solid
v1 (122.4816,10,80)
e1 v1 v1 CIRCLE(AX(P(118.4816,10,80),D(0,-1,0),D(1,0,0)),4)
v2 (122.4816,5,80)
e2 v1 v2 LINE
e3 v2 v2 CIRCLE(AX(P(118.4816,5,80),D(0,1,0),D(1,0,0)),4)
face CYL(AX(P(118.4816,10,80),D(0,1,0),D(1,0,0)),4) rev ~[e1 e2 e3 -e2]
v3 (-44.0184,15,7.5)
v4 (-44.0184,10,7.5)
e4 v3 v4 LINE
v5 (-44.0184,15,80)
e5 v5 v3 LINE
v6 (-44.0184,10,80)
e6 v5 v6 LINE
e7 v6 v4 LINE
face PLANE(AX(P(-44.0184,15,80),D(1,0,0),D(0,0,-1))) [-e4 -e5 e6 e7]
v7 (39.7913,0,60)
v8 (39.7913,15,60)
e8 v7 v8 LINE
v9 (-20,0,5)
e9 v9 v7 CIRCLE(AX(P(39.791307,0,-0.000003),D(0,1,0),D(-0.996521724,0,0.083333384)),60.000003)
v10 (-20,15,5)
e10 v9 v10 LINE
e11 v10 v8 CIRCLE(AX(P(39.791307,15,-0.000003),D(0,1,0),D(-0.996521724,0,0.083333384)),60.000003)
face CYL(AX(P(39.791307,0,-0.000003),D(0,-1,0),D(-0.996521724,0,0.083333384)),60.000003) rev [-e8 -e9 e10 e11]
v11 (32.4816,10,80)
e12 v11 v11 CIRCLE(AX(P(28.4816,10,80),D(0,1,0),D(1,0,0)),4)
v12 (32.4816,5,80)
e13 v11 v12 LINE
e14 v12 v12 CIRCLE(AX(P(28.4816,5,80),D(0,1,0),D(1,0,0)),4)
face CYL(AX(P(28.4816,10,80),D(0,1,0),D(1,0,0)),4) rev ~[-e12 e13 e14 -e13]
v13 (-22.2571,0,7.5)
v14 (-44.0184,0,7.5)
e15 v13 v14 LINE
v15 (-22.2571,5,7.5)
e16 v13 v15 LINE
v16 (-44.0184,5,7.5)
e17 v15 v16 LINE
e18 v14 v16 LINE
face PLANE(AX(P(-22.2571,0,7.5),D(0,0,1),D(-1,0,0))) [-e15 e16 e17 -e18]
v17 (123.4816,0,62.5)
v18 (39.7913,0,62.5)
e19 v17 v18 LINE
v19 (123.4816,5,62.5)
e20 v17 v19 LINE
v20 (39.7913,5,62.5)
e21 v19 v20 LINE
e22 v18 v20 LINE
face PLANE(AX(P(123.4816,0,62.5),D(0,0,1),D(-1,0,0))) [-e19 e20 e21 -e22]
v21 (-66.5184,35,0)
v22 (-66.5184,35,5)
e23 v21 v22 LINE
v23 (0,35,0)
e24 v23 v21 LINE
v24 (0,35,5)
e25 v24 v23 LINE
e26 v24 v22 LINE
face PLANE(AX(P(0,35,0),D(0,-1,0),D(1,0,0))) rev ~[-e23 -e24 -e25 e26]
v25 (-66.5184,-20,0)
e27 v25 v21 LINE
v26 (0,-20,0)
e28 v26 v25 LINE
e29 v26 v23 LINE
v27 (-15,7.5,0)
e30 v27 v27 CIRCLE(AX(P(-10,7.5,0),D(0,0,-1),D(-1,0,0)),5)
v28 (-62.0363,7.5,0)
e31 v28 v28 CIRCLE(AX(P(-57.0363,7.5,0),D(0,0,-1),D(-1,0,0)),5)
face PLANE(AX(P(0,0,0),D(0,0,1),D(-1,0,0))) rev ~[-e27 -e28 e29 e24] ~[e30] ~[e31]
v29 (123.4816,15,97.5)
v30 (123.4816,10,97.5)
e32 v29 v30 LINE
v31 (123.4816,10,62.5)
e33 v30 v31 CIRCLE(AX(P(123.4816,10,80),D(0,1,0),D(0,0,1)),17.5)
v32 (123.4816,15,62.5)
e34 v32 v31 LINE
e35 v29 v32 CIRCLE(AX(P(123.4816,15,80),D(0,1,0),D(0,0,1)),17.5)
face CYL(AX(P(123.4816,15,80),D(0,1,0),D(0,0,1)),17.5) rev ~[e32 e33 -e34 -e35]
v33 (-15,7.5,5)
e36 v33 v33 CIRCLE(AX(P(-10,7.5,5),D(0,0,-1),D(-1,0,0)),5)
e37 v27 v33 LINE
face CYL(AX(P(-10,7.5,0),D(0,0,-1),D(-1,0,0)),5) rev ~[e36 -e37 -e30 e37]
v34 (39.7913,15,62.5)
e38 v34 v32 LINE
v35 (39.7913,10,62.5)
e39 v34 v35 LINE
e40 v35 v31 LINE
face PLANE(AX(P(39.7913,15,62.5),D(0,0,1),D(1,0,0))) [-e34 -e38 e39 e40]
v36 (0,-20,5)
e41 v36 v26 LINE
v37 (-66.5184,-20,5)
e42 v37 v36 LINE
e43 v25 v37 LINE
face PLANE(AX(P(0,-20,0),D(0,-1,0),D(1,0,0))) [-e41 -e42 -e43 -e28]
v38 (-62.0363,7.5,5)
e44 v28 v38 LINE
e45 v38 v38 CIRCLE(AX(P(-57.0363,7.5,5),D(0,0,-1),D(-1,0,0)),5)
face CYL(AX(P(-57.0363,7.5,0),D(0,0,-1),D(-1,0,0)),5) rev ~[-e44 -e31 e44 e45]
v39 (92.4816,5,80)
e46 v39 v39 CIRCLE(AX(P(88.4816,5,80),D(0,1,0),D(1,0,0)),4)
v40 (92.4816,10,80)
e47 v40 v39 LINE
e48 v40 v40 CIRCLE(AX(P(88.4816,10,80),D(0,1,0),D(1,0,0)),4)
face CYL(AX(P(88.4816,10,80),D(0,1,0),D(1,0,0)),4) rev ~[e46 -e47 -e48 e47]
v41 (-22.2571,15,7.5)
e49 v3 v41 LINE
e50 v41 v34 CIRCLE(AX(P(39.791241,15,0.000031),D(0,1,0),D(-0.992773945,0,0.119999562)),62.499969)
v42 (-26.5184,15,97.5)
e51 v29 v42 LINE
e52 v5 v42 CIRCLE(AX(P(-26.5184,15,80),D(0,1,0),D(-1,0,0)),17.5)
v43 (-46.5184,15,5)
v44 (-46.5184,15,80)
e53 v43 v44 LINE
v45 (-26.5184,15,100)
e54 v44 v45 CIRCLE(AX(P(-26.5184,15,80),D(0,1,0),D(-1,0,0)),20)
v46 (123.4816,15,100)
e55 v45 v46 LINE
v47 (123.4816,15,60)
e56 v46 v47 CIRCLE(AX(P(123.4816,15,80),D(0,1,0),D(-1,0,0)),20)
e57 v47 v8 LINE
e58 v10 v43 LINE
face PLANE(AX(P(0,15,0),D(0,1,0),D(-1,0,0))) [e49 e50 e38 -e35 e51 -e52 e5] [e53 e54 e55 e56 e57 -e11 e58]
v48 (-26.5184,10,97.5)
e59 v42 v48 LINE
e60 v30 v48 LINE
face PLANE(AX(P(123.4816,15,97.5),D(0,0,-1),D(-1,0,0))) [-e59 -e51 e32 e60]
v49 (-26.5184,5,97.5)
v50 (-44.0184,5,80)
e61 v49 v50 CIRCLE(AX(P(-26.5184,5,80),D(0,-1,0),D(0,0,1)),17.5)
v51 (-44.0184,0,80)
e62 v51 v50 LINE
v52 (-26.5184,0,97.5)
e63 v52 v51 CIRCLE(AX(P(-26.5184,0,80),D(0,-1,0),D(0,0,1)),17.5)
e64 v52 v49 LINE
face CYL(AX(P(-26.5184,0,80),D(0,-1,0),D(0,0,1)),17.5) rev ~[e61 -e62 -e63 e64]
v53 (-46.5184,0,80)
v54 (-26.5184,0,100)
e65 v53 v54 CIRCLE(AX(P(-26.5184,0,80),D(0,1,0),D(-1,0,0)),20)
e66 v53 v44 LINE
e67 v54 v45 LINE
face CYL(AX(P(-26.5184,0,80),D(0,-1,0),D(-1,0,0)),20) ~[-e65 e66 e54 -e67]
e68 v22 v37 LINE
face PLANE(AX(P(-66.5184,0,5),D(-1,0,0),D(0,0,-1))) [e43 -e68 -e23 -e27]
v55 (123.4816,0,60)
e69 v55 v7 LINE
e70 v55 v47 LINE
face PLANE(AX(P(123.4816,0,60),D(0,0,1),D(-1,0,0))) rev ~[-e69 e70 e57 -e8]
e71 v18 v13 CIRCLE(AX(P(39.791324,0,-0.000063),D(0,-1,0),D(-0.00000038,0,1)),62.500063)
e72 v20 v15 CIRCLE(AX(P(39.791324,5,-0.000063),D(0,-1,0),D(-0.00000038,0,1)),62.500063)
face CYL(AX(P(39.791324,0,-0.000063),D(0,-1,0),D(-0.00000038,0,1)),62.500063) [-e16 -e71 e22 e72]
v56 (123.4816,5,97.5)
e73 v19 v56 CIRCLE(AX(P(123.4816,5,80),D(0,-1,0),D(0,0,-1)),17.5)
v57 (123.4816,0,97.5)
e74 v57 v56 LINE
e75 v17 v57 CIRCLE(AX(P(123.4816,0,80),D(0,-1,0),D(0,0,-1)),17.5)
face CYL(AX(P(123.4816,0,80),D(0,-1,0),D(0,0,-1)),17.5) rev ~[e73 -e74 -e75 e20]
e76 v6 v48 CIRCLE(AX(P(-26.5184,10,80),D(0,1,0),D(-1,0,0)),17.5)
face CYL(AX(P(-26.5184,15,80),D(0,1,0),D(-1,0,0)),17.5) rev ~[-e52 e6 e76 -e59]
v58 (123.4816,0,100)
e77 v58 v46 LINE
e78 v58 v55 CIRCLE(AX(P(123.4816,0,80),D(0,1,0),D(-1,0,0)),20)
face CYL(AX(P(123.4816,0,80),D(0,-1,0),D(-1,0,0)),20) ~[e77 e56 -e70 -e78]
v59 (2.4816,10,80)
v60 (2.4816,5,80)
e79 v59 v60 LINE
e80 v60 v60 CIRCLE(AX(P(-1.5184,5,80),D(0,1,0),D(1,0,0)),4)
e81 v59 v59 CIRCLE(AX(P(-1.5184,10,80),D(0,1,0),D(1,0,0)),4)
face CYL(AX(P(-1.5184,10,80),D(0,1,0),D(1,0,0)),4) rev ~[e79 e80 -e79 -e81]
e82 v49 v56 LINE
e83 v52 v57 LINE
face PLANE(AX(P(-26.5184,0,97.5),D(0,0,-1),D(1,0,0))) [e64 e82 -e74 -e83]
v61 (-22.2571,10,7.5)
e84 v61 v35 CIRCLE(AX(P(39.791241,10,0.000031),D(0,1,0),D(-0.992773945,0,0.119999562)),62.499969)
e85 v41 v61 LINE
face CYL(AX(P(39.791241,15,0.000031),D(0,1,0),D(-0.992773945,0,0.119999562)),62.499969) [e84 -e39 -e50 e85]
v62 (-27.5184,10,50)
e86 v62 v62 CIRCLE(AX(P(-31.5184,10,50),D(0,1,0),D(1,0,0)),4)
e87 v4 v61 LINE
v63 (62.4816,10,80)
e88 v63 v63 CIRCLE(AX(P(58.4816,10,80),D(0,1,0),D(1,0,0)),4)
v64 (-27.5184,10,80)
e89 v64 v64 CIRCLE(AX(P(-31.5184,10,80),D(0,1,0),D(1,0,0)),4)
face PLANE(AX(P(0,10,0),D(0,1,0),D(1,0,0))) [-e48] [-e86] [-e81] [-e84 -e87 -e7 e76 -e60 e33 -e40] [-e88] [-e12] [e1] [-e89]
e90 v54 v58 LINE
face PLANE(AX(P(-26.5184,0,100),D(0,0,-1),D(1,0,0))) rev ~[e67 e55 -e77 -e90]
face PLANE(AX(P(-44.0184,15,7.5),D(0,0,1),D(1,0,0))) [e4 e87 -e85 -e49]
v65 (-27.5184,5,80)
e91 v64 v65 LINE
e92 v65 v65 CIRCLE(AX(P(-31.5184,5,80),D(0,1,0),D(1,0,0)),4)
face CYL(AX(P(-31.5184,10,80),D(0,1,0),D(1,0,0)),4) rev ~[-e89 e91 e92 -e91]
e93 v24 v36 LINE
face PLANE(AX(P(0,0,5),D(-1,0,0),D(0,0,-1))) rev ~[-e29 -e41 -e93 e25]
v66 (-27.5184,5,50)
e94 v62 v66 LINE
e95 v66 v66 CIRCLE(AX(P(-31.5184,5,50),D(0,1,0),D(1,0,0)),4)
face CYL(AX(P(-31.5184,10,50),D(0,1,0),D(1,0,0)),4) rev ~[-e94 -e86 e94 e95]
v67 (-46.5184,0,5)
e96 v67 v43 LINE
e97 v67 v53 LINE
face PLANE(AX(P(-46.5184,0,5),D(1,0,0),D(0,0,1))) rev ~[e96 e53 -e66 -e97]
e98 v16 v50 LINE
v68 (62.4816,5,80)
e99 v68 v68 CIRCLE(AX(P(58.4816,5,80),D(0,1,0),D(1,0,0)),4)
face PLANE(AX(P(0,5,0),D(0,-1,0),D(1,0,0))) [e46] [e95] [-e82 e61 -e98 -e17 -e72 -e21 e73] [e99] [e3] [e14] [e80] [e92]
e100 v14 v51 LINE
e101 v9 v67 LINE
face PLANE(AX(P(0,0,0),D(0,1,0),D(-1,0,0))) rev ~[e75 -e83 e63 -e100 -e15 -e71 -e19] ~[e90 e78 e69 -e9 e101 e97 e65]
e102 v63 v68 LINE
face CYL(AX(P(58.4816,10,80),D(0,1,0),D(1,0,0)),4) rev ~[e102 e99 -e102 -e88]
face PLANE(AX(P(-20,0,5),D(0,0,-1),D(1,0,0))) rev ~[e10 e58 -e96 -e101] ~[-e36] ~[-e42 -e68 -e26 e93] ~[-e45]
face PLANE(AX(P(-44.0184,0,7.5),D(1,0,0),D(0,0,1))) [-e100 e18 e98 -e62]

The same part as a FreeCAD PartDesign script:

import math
import FreeCAD as App
import Part
import Sketcher
Q = App.Units.Quantity

doc = App.newDocument("Part")
body = doc.addObject("PartDesign::Body", "Body")

# Sketch on XZ plane
sketch1 = body.newObject("Sketcher::SketchObject", "Sketch")
sketch1.AttachmentSupport = (doc.getObject("XZ_Plane"), [""])
sketch1.MapMode = "FlatFace"
sketch1.addGeometry([
    Part.LineSegment(App.Vector(0, 5, 0), App.Vector(0, 0, 0)),  # 0
    Part.LineSegment(App.Vector(0, 0, 0), App.Vector(-67, 0, 0)),  # 1
    Part.LineSegment(App.Vector(-67, 0, 0), App.Vector(-67, 5, 0)),  # 2
    Part.LineSegment(App.Vector(-67, 5, 0), App.Vector(-47, 5, 0)),  # 3
    Part.LineSegment(App.Vector(-47, 5, 0), App.Vector(-47, 80, 0)),  # 4
    Part.ArcOfCircle(Part.Circle(App.Vector(-27, 80, 0), App.Vector(0, 0, 1), 20), math.radians(90), math.radians(180)),  # 5
    Part.LineSegment(App.Vector(-27, 100, 0), App.Vector(123, 100, 0)),  # 6
    Part.ArcOfCircle(Part.Circle(App.Vector(123, 80, 0), App.Vector(0, 0, 1), 20), math.radians(-90), math.radians(90)),  # 7
    Part.LineSegment(App.Vector(123, 60, 0), App.Vector(40, 60, 0)),  # 8
    Part.ArcOfCircle(Part.Circle(App.Vector(40, 0, 0), App.Vector(0, 0, 1), 60), math.radians(90), math.radians(175)),  # 9
    Part.LineSegment(App.Vector(-20, 5, 0), App.Vector(0, 5, 0)),  # 10
], False)
sketch1.addConstraint([
    Sketcher.Constraint("Coincident", 0, 2, 1, 1),
    Sketcher.Constraint("Coincident", 1, 2, 2, 1),
    Sketcher.Constraint("Coincident", 2, 2, 3, 1),
    Sketcher.Constraint("Coincident", 3, 2, 4, 1),
    Sketcher.Constraint("Tangent", 4, 2, 5, 2),
    Sketcher.Constraint("Tangent", 5, 1, 6, 1),
    Sketcher.Constraint("Tangent", 6, 2, 7, 2),
    Sketcher.Constraint("Tangent", 7, 1, 8, 1),
    Sketcher.Constraint("Tangent", 8, 2, 9, 1),
    Sketcher.Constraint("Coincident", 9, 2, 10, 1),
    Sketcher.Constraint("Coincident", 10, 2, 0, 1),
    Sketcher.Constraint("Vertical", 0),
    Sketcher.Constraint("Horizontal", 1),
    Sketcher.Constraint("Vertical", 2),
    Sketcher.Constraint("Horizontal", 3),
    Sketcher.Constraint("Vertical", 4),
    Sketcher.Constraint("Horizontal", 6),
    Sketcher.Constraint("Horizontal", 8),
    Sketcher.Constraint("Horizontal", 10),
    Sketcher.Constraint("Coincident", 0, 2, -1, 1),
    Sketcher.Constraint("Equal", 5, 7),
    Sketcher.Constraint("PointOnObject", 9, 3, -1),
    Sketcher.Constraint("Horizontal", 3, 2, 9, 2),
    Sketcher.Constraint("Equal", 3, 10),
    Sketcher.Constraint("Radius", 5, Q("20 mm")),
    Sketcher.Constraint("DistanceX", 6, 1, 6, 2, Q("150 mm")),
    Sketcher.Constraint("DistanceY", 0, 2, 0, 1, Q("5 mm")),
    Sketcher.Constraint("DistanceY", 4, 1, 4, 2, Q("75 mm")),
    Sketcher.Constraint("DistanceX", 1, 2, 5, 3, Q("40 mm")),
    Sketcher.Constraint("DistanceX", 1, 2, 1, 1, Q("66.5184 mm")),
])
pad1 = body.newObject("PartDesign::Pad", "Pad")
pad1.Profile = sketch1
pad1.Length = 15
pad1.Reversed = True

# Sketch on XZ plane
sketch2 = body.newObject("Sketcher::SketchObject", "Sketch001")
sketch2.AttachmentSupport = (doc.getObject("XZ_Plane"), [""])
sketch2.MapMode = "FlatFace"
sketch2.addGeometry([
    Part.LineSegment(App.Vector(0, 5, 0), App.Vector(-67, 5, 0)),
    Part.LineSegment(App.Vector(-67, 5, 0), App.Vector(-67, 0, 0)),
    Part.LineSegment(App.Vector(-67, 0, 0), App.Vector(0, 0, 0)),
    Part.LineSegment(App.Vector(0, 0, 0), App.Vector(0, 5, 0)),
], False)
sketch2.addConstraint([
    Sketcher.Constraint("Coincident", 0, 2, 1, 1),
    Sketcher.Constraint("Coincident", 1, 2, 2, 1),
    Sketcher.Constraint("Coincident", 2, 2, 3, 1),
    Sketcher.Constraint("Coincident", 3, 2, 0, 1),
    Sketcher.Constraint("Horizontal", 0),
    Sketcher.Constraint("Vertical", 1),
    Sketcher.Constraint("Horizontal", 2),
    Sketcher.Constraint("Vertical", 3),
    Sketcher.Constraint("Coincident", 2, 2, -1, 1),
    Sketcher.Constraint("DistanceY", 1, 2, 1, 1, Q("5 mm")),
    Sketcher.Constraint("DistanceX", 0, 2, 0, 1, Q("66.5184 mm")),
])
pad2 = body.newObject("PartDesign::Pad", "Pad001")
pad2.Profile = sketch2
pad2.Type = "TwoLengths"
pad2.Length = 20
pad2.Length2 = 35

# Sketch on XZ plane
sketch3 = body.newObject("Sketcher::SketchObject", "Sketch002")
sketch3.AttachmentSupport = (doc.getObject("XZ_Plane"), [""])
sketch3.MapMode = "FlatFace"
sketch3.addGeometry([
    Part.ArcOfCircle(Part.Circle(App.Vector(40, 0, 0), App.Vector(0, 0, 1), 62), math.radians(90), math.radians(173)),  # 0
    Part.LineSegment(App.Vector(40, 62, 0), App.Vector(123, 62, 0)),  # 1
    Part.ArcOfCircle(Part.Circle(App.Vector(123, 80, 0), App.Vector(0, 0, 1), 18), math.radians(-90), math.radians(90)),  # 2
    Part.LineSegment(App.Vector(123, 98, 0), App.Vector(-27, 98, 0)),  # 3
    Part.ArcOfCircle(Part.Circle(App.Vector(-27, 80, 0), App.Vector(0, 0, 1), 18), math.radians(90), math.radians(180)),  # 4
    Part.LineSegment(App.Vector(-44, 80, 0), App.Vector(-44, 8, 0)),  # 5
    Part.LineSegment(App.Vector(-44, 8, 0), App.Vector(-22, 8, 0)),  # 6
], False)
sketch3.addConstraint([
    Sketcher.Constraint("Tangent", 0, 1, 1, 1),
    Sketcher.Constraint("Tangent", 1, 2, 2, 1),
    Sketcher.Constraint("Tangent", 2, 2, 3, 1),
    Sketcher.Constraint("Tangent", 3, 2, 4, 1),
    Sketcher.Constraint("Tangent", 4, 2, 5, 1),
    Sketcher.Constraint("Coincident", 5, 2, 6, 1),
    Sketcher.Constraint("Coincident", 6, 2, 0, 2),
    Sketcher.Constraint("Horizontal", 1),
    Sketcher.Constraint("Horizontal", 3),
    Sketcher.Constraint("Vertical", 5),
    Sketcher.Constraint("Horizontal", 6),
    Sketcher.Constraint("Equal", 2, 4),
    Sketcher.Constraint("PointOnObject", 0, 3, -1),
    Sketcher.Constraint("Radius", 0, Q("62.5 mm")),
    Sketcher.Constraint("Radius", 2, Q("17.5 mm")),
    Sketcher.Constraint("DistanceX", 3, 2, 3, 1, Q("150 mm")),
    Sketcher.Constraint("DistanceY", 5, 2, 5, 1, Q("72.5 mm")),
    Sketcher.Constraint("DistanceX", 1, 1, 1, 2, Q("83.6903 mm")),
    Sketcher.Constraint("DistanceX", 6, 2, -1, 1, Q("22.257 mm")),
])
pocket1 = body.newObject("PartDesign::Pocket", "Pocket")
pocket1.Profile = sketch3
pocket1.Length = 5

# Sketch on XZ plane
sketch4 = body.newObject("Sketcher::SketchObject", "Sketch003")
sketch4.AttachmentSupport = (doc.getObject("XZ_Plane"), [""])
sketch4.MapMode = "FlatFace"
sketch4.AttachmentOffset = App.Placement(App.Vector(0, 0, -15), App.Rotation())
sketch4.addGeometry([
    Part.LineSegment(App.Vector(-44, 8, 0), App.Vector(-44, 80, 0)),  # 0
    Part.ArcOfCircle(Part.Circle(App.Vector(-27, 80, 0), App.Vector(0, 0, 1), 18), math.radians(90), math.radians(180)),  # 1
    Part.LineSegment(App.Vector(-27, 98, 0), App.Vector(123, 98, 0)),  # 2
    Part.ArcOfCircle(Part.Circle(App.Vector(123, 80, 0), App.Vector(0, 0, 1), 18), math.radians(-90), math.radians(90)),  # 3
    Part.LineSegment(App.Vector(123, 62, 0), App.Vector(40, 62, 0)),  # 4
    Part.ArcOfCircle(Part.Circle(App.Vector(40, 0, 0), App.Vector(0, 0, 1), 63), math.radians(90), math.radians(173)),  # 5
    Part.LineSegment(App.Vector(-22, 8, 0), App.Vector(-44, 8, 0)),  # 6
], False)
sketch4.addConstraint([
    Sketcher.Constraint("Tangent", 0, 2, 1, 2),
    Sketcher.Constraint("Tangent", 1, 1, 2, 1),
    Sketcher.Constraint("Tangent", 2, 2, 3, 2),
    Sketcher.Constraint("Tangent", 3, 1, 4, 1),
    Sketcher.Constraint("Tangent", 4, 2, 5, 1),
    Sketcher.Constraint("Coincident", 5, 2, 6, 1),
    Sketcher.Constraint("Coincident", 6, 2, 0, 1),
    Sketcher.Constraint("Vertical", 0),
    Sketcher.Constraint("Horizontal", 2),
    Sketcher.Constraint("Horizontal", 4),
    Sketcher.Constraint("Horizontal", 6),
    Sketcher.Constraint("Equal", 1, 3),
    Sketcher.Constraint("PointOnObject", 5, 3, -1),
    Sketcher.Constraint("Radius", 1, Q("17.5 mm")),
    Sketcher.Constraint("Radius", 5, Q("62.5 mm")),
    Sketcher.Constraint("DistanceX", 2, 1, 2, 2, Q("150 mm")),
    Sketcher.Constraint("DistanceY", 0, 1, 0, 2, Q("72.5 mm")),
    Sketcher.Constraint("DistanceX", 4, 2, 4, 1, Q("83.6903 mm")),
    Sketcher.Constraint("DistanceX", 5, 2, -1, 1, Q("22.257 mm")),
])
pocket2 = body.newObject("PartDesign::Pocket", "Pocket001")
pocket2.Profile = sketch4
pocket2.Length = 5
pocket2.Reversed = True

# Sketch on XZ plane
sketch5 = body.newObject("Sketcher::SketchObject", "Sketch004")
sketch5.AttachmentSupport = (doc.getObject("XZ_Plane"), [""])
sketch5.MapMode = "FlatFace"
sketch5.AttachmentOffset = App.Placement(App.Vector(0, 0, -10), App.Rotation())
sketch5.addGeometry([
    Part.Circle(App.Vector(118.5, 80, 0), App.Vector(0, 0, 1), 4),  # 0
    Part.Circle(App.Vector(88.5, 80, 0), App.Vector(0, 0, 1), 4),  # 1
    Part.Circle(App.Vector(58.5, 80, 0), App.Vector(0, 0, 1), 4),  # 2
    Part.Circle(App.Vector(28.5, 80, 0), App.Vector(0, 0, 1), 4),  # 3
    Part.Circle(App.Vector(-1.5, 80, 0), App.Vector(0, 0, 1), 4),  # 4
    Part.Circle(App.Vector(-31.5, 80, 0), App.Vector(0, 0, 1), 4),  # 5
    Part.Circle(App.Vector(-31.5, 50, 0), App.Vector(0, 0, 1), 4),  # 6
], False)
sketch5.addConstraint([
    Sketcher.Constraint("Equal", 0, 1),
    Sketcher.Constraint("Equal", 1, 2),
    Sketcher.Constraint("Equal", 2, 3),
    Sketcher.Constraint("Equal", 3, 4),
    Sketcher.Constraint("Equal", 4, 5),
    Sketcher.Constraint("Equal", 5, 6),
    Sketcher.Constraint("Horizontal", 0, 3, 1, 3),
    Sketcher.Constraint("Horizontal", 1, 3, 2, 3),
    Sketcher.Constraint("Horizontal", 2, 3, 3, 3),
    Sketcher.Constraint("Horizontal", 3, 3, 4, 3),
    Sketcher.Constraint("Horizontal", 4, 3, 5, 3),
    Sketcher.Constraint("Vertical", 5, 3, 6, 3),
    Sketcher.Constraint("Diameter", 0, Q("8 mm")),
    Sketcher.Constraint("DistanceX", 1, 3, 0, 3, Q("30 mm")),
    Sketcher.Constraint("DistanceX", 2, 3, 1, 3, Q("30 mm")),
    Sketcher.Constraint("DistanceX", 3, 3, 2, 3, Q("30 mm")),
    Sketcher.Constraint("DistanceX", 4, 3, 3, 3, Q("30 mm")),
    Sketcher.Constraint("DistanceX", 5, 3, 4, 3, Q("30 mm")),
    Sketcher.Constraint("DistanceY", 6, 3, 5, 3, Q("30 mm")),
    Sketcher.Constraint("DistanceY", -1, 1, 0, 3, Q("80 mm")),
    Sketcher.Constraint("DistanceX", -1, 1, 0, 3, Q("118.4816 mm")),
])
pocket3 = body.newObject("PartDesign::Pocket", "Pocket002")
pocket3.Profile = sketch5
pocket3.Length = 8
pocket3.Reversed = True

# Sketch on XY plane
sketch6 = body.newObject("Sketcher::SketchObject", "Sketch005")
sketch6.AttachmentSupport = (doc.getObject("XY_Plane"), [""])
sketch6.MapMode = "FlatFace"
sketch6.addGeometry([
    Part.Circle(App.Vector(-10, 8, 0), App.Vector(0, 0, 1), 5),
    Part.Circle(App.Vector(-57, 8, 0), App.Vector(0, 0, 1), 5),
], False)
sketch6.addConstraint([
    Sketcher.Constraint("Equal", 0, 1),
    Sketcher.Constraint("Horizontal", 0, 3, 1, 3),
    Sketcher.Constraint("Diameter", 0, Q("10 mm")),
    Sketcher.Constraint("DistanceX", 0, 3, -1, 1, Q("10 mm")),
    Sketcher.Constraint("DistanceY", -1, 1, 0, 3, Q("7.5 mm")),
    Sketcher.Constraint("DistanceX", 1, 3, -1, 1, Q("57.0363 mm")),
])
pocket4 = body.newObject("PartDesign::Pocket", "Pocket003")
pocket4.Profile = sketch6
pocket4.Length = 10
pocket4.Reversed = True

doc.recompute()
